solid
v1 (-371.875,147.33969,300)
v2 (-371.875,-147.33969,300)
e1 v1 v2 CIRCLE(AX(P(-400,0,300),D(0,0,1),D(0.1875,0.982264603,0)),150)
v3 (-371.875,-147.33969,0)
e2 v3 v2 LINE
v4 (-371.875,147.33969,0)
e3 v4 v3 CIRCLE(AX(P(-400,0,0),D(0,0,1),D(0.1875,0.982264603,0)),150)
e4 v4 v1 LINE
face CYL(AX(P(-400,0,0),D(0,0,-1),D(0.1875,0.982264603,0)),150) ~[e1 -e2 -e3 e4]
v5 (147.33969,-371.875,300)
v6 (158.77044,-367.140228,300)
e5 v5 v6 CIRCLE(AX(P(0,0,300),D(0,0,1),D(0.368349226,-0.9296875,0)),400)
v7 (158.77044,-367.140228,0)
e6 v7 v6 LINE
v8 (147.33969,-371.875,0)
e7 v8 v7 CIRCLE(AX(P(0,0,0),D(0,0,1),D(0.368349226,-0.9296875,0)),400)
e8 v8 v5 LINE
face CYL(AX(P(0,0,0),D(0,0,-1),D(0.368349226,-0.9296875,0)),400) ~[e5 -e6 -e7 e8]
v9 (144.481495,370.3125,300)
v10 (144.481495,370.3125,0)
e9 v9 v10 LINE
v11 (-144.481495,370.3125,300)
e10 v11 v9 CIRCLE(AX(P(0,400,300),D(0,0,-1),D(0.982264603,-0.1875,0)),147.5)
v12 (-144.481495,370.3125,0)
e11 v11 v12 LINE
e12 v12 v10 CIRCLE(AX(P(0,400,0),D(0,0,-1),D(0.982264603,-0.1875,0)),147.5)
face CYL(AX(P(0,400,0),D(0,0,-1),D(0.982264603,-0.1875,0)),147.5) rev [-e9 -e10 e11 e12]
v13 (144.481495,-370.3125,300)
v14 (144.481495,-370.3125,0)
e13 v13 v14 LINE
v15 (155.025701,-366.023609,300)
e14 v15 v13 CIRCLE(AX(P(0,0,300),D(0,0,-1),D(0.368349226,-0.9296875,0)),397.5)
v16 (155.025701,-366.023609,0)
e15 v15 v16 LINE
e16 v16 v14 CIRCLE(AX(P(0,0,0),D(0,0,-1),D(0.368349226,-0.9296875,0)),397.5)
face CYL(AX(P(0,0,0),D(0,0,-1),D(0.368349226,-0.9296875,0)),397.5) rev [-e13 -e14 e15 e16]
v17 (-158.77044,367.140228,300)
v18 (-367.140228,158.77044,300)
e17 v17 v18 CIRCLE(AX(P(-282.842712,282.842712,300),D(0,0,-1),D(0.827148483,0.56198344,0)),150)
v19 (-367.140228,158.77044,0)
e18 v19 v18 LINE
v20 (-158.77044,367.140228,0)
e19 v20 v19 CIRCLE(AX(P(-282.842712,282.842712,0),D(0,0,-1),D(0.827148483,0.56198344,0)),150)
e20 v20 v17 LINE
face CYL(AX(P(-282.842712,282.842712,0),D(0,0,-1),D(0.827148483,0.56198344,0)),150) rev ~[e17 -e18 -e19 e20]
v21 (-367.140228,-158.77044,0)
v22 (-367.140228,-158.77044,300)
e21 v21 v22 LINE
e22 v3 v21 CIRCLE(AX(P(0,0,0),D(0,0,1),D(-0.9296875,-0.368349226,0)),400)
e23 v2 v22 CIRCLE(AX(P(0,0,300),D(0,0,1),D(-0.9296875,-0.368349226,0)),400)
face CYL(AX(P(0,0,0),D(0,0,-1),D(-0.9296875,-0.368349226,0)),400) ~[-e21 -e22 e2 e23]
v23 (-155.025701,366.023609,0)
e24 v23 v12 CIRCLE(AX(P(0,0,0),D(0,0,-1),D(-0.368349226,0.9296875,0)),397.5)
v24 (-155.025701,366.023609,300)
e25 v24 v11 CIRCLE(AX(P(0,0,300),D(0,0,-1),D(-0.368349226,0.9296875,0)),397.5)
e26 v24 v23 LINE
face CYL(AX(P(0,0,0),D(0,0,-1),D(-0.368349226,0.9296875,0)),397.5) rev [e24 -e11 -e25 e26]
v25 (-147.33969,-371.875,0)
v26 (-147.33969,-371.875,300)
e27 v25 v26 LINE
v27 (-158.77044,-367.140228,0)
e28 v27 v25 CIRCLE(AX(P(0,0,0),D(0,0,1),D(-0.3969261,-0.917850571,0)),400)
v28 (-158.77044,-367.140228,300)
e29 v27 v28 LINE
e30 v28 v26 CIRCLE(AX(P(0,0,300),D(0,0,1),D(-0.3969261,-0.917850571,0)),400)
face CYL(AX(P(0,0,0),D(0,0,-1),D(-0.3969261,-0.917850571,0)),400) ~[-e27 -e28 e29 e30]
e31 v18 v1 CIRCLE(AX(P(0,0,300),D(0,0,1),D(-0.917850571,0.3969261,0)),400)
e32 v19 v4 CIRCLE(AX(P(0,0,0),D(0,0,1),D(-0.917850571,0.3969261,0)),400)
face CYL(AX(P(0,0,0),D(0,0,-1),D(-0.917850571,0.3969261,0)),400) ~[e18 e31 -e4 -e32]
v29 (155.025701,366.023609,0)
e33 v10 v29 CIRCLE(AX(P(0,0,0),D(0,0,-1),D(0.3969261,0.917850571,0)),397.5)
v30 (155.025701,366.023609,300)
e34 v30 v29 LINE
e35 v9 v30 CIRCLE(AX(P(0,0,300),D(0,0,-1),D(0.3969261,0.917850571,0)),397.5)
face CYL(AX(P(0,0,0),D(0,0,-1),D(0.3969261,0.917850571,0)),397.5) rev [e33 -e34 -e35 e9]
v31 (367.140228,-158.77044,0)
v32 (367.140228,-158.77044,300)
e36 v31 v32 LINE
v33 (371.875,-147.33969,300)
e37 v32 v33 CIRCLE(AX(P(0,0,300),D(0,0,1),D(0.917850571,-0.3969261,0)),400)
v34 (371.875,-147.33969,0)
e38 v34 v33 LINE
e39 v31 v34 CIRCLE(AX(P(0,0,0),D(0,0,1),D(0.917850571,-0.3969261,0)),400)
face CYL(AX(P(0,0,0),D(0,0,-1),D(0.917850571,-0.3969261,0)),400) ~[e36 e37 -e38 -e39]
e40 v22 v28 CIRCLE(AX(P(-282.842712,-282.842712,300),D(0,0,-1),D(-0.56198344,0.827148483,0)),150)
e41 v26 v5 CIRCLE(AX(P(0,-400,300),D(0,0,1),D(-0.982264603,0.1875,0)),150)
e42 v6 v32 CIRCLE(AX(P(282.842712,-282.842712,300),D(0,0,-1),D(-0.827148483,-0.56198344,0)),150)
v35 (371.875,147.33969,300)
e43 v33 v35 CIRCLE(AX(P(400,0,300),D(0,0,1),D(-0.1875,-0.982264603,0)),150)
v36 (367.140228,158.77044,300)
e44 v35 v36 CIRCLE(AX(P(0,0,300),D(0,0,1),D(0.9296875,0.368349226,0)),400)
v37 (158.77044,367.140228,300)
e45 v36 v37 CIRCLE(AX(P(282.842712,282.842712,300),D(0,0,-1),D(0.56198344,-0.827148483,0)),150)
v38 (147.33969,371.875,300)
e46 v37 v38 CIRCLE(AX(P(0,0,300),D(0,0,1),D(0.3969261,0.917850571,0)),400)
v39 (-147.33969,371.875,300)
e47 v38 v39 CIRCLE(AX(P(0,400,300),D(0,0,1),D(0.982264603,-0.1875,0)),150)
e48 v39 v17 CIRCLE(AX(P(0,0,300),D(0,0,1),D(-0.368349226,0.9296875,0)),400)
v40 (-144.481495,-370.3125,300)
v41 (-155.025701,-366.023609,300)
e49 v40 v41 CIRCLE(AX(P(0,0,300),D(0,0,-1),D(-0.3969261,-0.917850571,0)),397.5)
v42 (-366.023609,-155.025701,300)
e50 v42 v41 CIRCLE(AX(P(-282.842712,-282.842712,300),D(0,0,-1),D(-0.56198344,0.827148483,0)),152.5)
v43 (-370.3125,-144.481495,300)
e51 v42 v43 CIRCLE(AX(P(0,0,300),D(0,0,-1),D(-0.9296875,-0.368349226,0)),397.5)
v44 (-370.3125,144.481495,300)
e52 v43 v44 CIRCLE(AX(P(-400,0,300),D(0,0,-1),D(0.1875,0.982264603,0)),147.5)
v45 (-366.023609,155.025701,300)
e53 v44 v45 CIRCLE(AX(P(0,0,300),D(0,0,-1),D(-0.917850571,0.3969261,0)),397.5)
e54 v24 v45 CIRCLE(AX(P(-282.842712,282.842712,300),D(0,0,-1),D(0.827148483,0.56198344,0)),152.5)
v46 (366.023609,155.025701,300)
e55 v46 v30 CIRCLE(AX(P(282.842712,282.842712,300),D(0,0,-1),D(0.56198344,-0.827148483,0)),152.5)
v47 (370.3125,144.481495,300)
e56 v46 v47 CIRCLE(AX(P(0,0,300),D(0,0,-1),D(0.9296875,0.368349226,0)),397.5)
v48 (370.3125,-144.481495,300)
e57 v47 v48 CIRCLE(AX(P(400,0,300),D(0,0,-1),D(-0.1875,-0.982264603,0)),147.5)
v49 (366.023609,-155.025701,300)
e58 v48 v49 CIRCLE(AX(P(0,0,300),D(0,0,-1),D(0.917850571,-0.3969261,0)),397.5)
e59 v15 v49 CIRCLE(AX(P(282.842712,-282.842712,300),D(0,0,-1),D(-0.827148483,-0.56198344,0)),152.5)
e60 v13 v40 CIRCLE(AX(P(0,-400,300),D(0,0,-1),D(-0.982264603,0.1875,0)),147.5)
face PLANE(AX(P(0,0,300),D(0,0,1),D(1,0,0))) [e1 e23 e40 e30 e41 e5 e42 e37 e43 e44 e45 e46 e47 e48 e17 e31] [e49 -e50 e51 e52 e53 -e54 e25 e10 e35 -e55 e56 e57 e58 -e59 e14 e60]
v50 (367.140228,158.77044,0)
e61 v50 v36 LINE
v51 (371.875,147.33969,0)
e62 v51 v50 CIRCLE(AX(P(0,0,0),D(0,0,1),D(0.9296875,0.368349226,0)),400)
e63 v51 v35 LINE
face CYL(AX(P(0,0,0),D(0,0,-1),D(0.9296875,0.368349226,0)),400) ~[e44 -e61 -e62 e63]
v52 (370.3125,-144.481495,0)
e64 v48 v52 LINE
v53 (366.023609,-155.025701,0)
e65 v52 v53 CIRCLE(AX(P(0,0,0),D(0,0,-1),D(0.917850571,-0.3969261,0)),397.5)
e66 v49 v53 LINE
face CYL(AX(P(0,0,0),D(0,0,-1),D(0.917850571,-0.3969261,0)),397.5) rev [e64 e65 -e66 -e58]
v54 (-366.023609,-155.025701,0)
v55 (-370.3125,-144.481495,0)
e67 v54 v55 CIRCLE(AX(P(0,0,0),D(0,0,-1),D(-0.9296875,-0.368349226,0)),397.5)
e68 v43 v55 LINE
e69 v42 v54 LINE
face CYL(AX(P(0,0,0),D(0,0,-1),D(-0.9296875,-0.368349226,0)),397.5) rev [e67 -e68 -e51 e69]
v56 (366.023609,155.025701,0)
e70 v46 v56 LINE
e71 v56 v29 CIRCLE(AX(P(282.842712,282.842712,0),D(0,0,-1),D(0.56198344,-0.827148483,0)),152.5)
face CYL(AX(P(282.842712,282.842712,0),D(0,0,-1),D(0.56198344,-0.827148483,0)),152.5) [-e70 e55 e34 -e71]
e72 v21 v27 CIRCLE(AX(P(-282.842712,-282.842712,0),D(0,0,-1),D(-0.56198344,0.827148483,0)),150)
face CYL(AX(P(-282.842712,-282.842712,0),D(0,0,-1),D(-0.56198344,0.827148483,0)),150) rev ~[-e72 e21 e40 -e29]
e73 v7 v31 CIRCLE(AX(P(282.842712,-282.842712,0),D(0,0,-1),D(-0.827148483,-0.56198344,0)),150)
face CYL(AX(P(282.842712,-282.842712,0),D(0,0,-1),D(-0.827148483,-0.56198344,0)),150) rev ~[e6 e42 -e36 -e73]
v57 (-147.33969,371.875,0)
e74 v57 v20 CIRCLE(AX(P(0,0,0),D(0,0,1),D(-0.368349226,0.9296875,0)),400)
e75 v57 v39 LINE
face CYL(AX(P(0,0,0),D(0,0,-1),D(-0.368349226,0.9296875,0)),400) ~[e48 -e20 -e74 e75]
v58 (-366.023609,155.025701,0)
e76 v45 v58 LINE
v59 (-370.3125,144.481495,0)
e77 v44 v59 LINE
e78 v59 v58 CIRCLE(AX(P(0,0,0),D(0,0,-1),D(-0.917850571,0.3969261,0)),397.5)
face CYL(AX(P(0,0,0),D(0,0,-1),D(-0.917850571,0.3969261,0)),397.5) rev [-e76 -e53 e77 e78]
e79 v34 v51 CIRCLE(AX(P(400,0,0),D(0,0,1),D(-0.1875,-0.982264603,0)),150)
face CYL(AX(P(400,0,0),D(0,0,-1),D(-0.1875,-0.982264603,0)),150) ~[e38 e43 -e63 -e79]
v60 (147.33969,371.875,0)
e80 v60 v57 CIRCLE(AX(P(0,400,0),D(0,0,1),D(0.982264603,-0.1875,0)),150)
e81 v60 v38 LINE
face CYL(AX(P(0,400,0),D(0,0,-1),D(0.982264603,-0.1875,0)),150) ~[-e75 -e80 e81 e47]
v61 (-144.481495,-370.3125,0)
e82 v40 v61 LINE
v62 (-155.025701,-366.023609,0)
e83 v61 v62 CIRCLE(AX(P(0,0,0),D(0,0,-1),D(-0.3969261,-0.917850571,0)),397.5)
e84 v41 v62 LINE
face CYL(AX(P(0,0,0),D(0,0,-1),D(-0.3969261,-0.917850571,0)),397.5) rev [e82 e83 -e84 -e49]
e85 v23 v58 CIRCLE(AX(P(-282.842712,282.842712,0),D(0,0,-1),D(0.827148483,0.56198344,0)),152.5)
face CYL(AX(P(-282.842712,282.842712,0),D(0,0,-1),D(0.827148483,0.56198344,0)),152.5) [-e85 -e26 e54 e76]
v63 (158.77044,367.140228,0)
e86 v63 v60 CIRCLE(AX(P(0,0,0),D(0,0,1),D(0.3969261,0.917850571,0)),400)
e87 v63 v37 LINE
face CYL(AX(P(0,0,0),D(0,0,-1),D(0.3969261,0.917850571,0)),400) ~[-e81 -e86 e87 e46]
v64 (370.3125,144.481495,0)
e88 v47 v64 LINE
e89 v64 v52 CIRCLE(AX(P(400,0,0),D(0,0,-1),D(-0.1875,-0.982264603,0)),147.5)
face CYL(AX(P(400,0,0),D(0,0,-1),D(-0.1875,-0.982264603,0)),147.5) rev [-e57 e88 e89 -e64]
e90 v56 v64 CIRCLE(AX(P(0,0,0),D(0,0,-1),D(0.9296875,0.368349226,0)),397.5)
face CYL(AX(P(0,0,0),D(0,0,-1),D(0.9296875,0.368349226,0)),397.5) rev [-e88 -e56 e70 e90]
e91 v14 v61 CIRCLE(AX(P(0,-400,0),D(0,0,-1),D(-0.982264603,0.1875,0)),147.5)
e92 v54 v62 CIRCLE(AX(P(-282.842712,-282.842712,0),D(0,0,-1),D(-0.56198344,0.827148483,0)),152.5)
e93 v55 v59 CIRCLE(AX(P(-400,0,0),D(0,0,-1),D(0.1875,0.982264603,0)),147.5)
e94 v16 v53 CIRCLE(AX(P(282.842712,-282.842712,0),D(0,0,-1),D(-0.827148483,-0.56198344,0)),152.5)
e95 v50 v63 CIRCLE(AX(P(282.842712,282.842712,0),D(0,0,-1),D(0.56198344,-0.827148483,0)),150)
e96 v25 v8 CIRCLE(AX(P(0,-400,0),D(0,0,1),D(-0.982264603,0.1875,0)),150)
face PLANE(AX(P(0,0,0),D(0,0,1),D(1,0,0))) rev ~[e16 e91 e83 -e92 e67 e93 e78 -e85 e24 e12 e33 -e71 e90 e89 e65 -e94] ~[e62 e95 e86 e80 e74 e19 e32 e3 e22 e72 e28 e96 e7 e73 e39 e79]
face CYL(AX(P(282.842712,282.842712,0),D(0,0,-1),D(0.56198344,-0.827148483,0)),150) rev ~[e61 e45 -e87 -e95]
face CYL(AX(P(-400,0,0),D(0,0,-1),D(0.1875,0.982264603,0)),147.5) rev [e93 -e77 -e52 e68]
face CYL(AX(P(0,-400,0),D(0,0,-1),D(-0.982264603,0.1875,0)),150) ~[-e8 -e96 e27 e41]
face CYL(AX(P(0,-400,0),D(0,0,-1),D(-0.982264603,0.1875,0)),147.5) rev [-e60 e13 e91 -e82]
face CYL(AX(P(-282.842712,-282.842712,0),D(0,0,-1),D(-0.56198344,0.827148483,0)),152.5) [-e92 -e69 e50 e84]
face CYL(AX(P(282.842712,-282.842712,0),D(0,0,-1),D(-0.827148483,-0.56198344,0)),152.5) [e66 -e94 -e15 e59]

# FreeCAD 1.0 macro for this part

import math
import FreeCAD as App
import Part
import Sketcher

V = App.Vector
Q = App.Units.Quantity


def faces_at(feature, points):
    """Names of the faces that lie closest to the given points."""
    faces = feature.Shape.Faces
    near = lambda p: min(range(len(faces)), key=lambda i: faces[i].distToShape(Part.Vertex(*p))[0])
    return sorted({f"Face{near(p) + 1}" for p in points})

doc = App.newDocument("Part")
body = doc.addObject("PartDesign::Body", "Body")

# Sketch on XY plane
sketch1 = body.newObject("Sketcher::SketchObject", "Sketch")
sketch1.AttachmentSupport = (doc.getObject("XY_Plane"), [""])
sketch1.MapMode = "FlatFace"
sketch1.addGeometry(Part.ArcOfCircle(Part.Circle(V(-283, 283, 0), V(0, 0, 1), 150), math.radians(-124), math.radians(34)), False)
sketch1.addGeometry(Part.ArcOfCircle(Part.Circle(V(0, 0, 0), V(0, 0, 1), 400), math.radians(156.61), math.radians(158.39)), False)
sketch1.addGeometry(Part.ArcOfCircle(Part.Circle(V(-400, 0, 0), V(0, 0, 1), 150), math.radians(79), math.radians(281)), False)
sketch1.addGeometry(Part.ArcOfCircle(Part.Circle(V(0, 0, 0), V(0, 0, 1), 400), math.radians(-158.39), math.radians(-156.61)), False)
sketch1.addGeometry(Part.ArcOfCircle(Part.Circle(V(-283, -283, 0), V(0, 0, 1), 150), math.radians(-34), math.radians(124)), False)
sketch1.addGeometry(Part.ArcOfCircle(Part.Circle(V(0, 0, 0), V(0, 0, 1), 400), math.radians(-113.39), math.radians(-111.61)), False)
sketch1.addGeometry(Part.ArcOfCircle(Part.Circle(V(0, -400, 0), V(0, 0, 1), 150), math.radians(169), math.radians(371)), False)
sketch1.addGeometry(Part.ArcOfCircle(Part.Circle(V(0, 0, 0), V(0, 0, 1), 400), math.radians(-68.39), math.radians(-66.61)), False)
sketch1.addGeometry(Part.ArcOfCircle(Part.Circle(V(283, -283, 0), V(0, 0, 1), 150), math.radians(56), math.radians(214)), False)
sketch1.addGeometry(Part.ArcOfCircle(Part.Circle(V(0, 0, 0), V(0, 0, 1), 400), math.radians(-23.39), math.radians(-21.61)), False)
sketch1.addGeometry(Part.ArcOfCircle(Part.Circle(V(400, 0, 0), V(0, 0, 1), 150), math.radians(-101), math.radians(101)), False)
sketch1.addGeometry(Part.ArcOfCircle(Part.Circle(V(0, 0, 0), V(0, 0, 1), 400), math.radians(21.61), math.radians(23.39)), False)
sketch1.addGeometry(Part.ArcOfCircle(Part.Circle(V(283, 283, 0), V(0, 0, 1), 150), math.radians(146), math.radians(304)), False)
sketch1.addGeometry(Part.ArcOfCircle(Part.Circle(V(0, 0, 0), V(0, 0, 1), 400), math.radians(66.61), math.radians(68.39)), False)
sketch1.addGeometry(Part.ArcOfCircle(Part.Circle(V(0, 400, 0), V(0, 0, 1), 150), math.radians(-11), math.radians(191)), False)
sketch1.addGeometry(Part.ArcOfCircle(Part.Circle(V(0, 0, 0), V(0, 0, 1), 400), math.radians(111.61), math.radians(113.39)), False)
sketch1.addConstraint(Sketcher.Constraint("Coincident", 0, 1, 1, 1))
sketch1.addConstraint(Sketcher.Constraint("Coincident", 1, 2, 2, 1))
sketch1.addConstraint(Sketcher.Constraint("Coincident", 2, 2, 3, 1))
sketch1.addConstraint(Sketcher.Constraint("Coincident", 3, 2, 4, 2))
sketch1.addConstraint(Sketcher.Constraint("Coincident", 4, 1, 5, 1))
sketch1.addConstraint(Sketcher.Constraint("Coincident", 5, 2, 6, 1))
sketch1.addConstraint(Sketcher.Constraint("Coincident", 6, 2, 7, 1))
sketch1.addConstraint(Sketcher.Constraint("Coincident", 7, 2, 8, 2))
sketch1.addConstraint(Sketcher.Constraint("Coincident", 8, 1, 9, 1))
sketch1.addConstraint(Sketcher.Constraint("Coincident", 9, 2, 10, 1))
sketch1.addConstraint(Sketcher.Constraint("Coincident", 10, 2, 11, 1))
sketch1.addConstraint(Sketcher.Constraint("Coincident", 11, 2, 12, 2))
sketch1.addConstraint(Sketcher.Constraint("Coincident", 12, 1, 13, 1))
sketch1.addConstraint(Sketcher.Constraint("Coincident", 13, 2, 14, 1))
sketch1.addConstraint(Sketcher.Constraint("Coincident", 14, 2, 15, 1))
sketch1.addConstraint(Sketcher.Constraint("Coincident", 15, 2, 0, 2))
sketch1.addConstraint(Sketcher.Constraint("Coincident", 1, 3, -1, 1))
sketch1.addConstraint(Sketcher.Constraint("Coincident", 3, 3, -1, 1))
sketch1.addConstraint(Sketcher.Constraint("Coincident", 5, 3, -1, 1))
sketch1.addConstraint(Sketcher.Constraint("Coincident", 7, 3, -1, 1))
sketch1.addConstraint(Sketcher.Constraint("Coincident", 9, 3, -1, 1))
sketch1.addConstraint(Sketcher.Constraint("Coincident", 11, 3, -1, 1))
sketch1.addConstraint(Sketcher.Constraint("Coincident", 13, 3, -1, 1))
sketch1.addConstraint(Sketcher.Constraint("Coincident", 15, 3, -1, 1))
sketch1.addConstraint(Sketcher.Constraint("Equal", 0, 2))
sketch1.addConstraint(Sketcher.Constraint("Equal", 1, 3))
sketch1.addConstraint(Sketcher.Constraint("Equal", 2, 4))
sketch1.addConstraint(Sketcher.Constraint("Equal", 3, 5))
sketch1.addConstraint(Sketcher.Constraint("Equal", 4, 6))
sketch1.addConstraint(Sketcher.Constraint("Equal", 5, 7))
sketch1.addConstraint(Sketcher.Constraint("Equal", 6, 8))
sketch1.addConstraint(Sketcher.Constraint("Equal", 7, 9))
sketch1.addConstraint(Sketcher.Constraint("Equal", 8, 10))
sketch1.addConstraint(Sketcher.Constraint("Equal", 9, 11))
sketch1.addConstraint(Sketcher.Constraint("Equal", 10, 12))
sketch1.addConstraint(Sketcher.Constraint("Equal", 11, 13))
sketch1.addConstraint(Sketcher.Constraint("Equal", 12, 14))
sketch1.addConstraint(Sketcher.Constraint("Equal", 13, 15))
sketch1.addConstraint(Sketcher.Constraint("Symmetric", 0, 3, 8, 3, -1, 1))
sketch1.addConstraint(Sketcher.Constraint("Symmetric", 2, 3, 10, 3, -1, 1))
sketch1.addConstraint(Sketcher.Constraint("Symmetric", 4, 3, 12, 3, -1, 1))
sketch1.addConstraint(Sketcher.Constraint("Symmetric", 6, 3, 14, 3, -1, 1))
sketch1.addConstraint(Sketcher.Constraint("Symmetric", 4, 3, 8, 3, -2))
sketch1.addConstraint(Sketcher.Constraint("PointOnObject", 2, 3, -1))
sketch1.addConstraint(Sketcher.Constraint("PointOnObject", 6, 3, -2))
sketch1.addConstraint(Sketcher.Constraint("Radius", 0, Q("150 mm")))
sketch1.addConstraint(Sketcher.Constraint("Radius", 1, Q("400 mm")))
sketch1.addConstraint(Sketcher.Constraint("DistanceX", 2, 3, -1, 1, Q("400 mm")))
sketch1.addConstraint(Sketcher.Constraint("DistanceY", 6, 3, -1, 1, Q("400 mm")))
sketch1.addConstraint(Sketcher.Constraint("DistanceY", -1, 1, 0, 1, Q("158.77044 mm")))
sketch1.addConstraint(Sketcher.Constraint("DistanceX", 4, 1, -1, 1, Q("158.77044 mm")))
pad1 = body.newObject("PartDesign::Pad", "Pad")
pad1.Profile = sketch1
pad1.Length = 300
doc.recompute()

thickness = body.newObject("PartDesign::Thickness", "Thickness")
thickness.Base = (pad1, faces_at(pad1, [(0, 0, 300), (0, 0, 0)]))
thickness.Value = 2.5
thickness.Reversed = True
thickness.Join = "Intersection"

doc.recompute()
